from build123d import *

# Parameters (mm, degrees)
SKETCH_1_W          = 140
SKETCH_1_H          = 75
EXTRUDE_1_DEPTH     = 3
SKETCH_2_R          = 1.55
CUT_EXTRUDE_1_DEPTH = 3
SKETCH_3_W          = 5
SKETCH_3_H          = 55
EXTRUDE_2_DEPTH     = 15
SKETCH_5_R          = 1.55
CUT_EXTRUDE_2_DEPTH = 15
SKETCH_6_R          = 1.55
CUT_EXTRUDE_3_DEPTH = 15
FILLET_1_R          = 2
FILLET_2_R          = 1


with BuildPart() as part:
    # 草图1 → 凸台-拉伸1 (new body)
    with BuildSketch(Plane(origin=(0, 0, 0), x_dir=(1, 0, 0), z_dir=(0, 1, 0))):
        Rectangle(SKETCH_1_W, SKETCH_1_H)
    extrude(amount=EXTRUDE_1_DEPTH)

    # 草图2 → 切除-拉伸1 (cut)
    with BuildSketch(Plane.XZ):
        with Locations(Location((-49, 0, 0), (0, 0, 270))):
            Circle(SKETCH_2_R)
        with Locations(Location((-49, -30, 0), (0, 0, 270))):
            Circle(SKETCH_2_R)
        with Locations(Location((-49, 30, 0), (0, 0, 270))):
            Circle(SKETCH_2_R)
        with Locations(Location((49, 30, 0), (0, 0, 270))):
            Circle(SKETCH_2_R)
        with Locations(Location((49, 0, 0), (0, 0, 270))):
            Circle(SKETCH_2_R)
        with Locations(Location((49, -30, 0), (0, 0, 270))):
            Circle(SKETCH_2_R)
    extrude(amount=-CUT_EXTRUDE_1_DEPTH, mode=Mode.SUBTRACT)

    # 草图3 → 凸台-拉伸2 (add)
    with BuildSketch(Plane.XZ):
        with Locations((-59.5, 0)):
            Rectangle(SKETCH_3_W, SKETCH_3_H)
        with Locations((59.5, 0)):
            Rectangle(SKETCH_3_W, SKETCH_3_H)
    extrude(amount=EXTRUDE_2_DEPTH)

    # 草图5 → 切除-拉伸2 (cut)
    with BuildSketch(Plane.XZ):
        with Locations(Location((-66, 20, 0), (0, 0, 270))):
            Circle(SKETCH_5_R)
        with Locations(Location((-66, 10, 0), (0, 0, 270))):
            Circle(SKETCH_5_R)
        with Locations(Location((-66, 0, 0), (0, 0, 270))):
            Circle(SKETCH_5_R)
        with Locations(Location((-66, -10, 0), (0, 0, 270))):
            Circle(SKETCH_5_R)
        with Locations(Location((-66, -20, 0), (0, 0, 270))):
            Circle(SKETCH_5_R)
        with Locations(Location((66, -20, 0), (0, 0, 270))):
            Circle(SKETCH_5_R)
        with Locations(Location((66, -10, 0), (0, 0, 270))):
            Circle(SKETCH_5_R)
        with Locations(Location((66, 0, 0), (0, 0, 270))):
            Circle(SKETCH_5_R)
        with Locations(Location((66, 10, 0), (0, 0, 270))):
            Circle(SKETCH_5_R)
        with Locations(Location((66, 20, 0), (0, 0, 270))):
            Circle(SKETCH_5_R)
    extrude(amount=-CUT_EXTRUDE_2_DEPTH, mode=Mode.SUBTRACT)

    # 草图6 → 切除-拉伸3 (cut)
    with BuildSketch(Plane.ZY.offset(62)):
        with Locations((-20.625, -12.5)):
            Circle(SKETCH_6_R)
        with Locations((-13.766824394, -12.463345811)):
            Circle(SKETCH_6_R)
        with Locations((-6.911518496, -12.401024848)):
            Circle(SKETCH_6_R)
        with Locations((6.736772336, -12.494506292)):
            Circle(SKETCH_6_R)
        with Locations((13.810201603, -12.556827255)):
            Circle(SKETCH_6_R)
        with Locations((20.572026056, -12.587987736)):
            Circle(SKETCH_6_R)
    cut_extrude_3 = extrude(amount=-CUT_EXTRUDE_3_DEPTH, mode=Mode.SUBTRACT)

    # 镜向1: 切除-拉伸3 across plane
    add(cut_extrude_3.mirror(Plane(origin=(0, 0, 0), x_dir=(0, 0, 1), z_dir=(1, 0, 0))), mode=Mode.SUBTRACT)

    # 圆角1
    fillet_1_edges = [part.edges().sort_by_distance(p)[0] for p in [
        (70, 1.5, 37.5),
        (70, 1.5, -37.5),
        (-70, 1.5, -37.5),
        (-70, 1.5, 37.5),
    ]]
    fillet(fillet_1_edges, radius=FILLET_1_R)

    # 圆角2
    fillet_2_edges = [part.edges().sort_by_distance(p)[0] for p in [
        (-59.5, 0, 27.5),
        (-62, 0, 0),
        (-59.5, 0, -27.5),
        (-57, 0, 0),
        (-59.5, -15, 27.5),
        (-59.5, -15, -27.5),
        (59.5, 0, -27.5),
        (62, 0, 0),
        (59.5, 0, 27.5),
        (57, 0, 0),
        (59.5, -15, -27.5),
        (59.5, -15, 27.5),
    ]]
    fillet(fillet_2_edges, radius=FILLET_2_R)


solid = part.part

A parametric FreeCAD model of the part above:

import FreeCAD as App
import Part
import Sketcher
Q = App.Units.Quantity


def edges_at(feature, points):
    """Names of the edges that pass closest to the given points."""
    edges = feature.Shape.Edges
    near = lambda p: min(range(len(edges)), key=lambda i: edges[i].distToShape(Part.Vertex(*p))[0])
    return sorted({f"Edge{near(p) + 1}" for p in points})

doc = App.newDocument("Part")
params = doc.addObject("Spreadsheet::Sheet", "Params")
for row, (alias, value) in enumerate([
    ("sketch1_width", "140 mm"),
    ("sketch1_height", "75 mm"),
    ("pad1_length", "3 mm"),
    ("sketch2_diameter", "3.1 mm"),
    ("pocket1_length", "3 mm"),
    ("sketch3_width", "5 mm"),
    ("sketch3_height", "55 mm"),
    ("pad2_length", "15 mm"),
    ("sketch4_diameter", "3.1 mm"),
    ("pocket2_length", "15 mm"),
    ("sketch5_diameter", "3.1 mm"),
    ("pocket3_length", "15 mm"),
    ("fillet_radius", "2 mm"),
    ("fillet2_radius", "1 mm"),
], start=1):
    params.set(f"A{row}", alias)
    params.set(f"B{row}", "=" + value)
    params.setAlias(f"B{row}", alias)

body = doc.addObject("PartDesign::Body", "Body")

# Sketch on XZ plane
sketch1 = body.newObject("Sketcher::SketchObject", "Sketch")
sketch1.AttachmentSupport = (doc.getObject("XZ_Plane"), [""])
sketch1.MapMode = "FlatFace"
sketch1.addGeometry([
    Part.LineSegment(App.Vector(-70, -38, 0), App.Vector(-70, 38, 0)),
    Part.LineSegment(App.Vector(-70, 38, 0), App.Vector(70, 38, 0)),
    Part.LineSegment(App.Vector(70, 38, 0), App.Vector(70, -38, 0)),
    Part.LineSegment(App.Vector(70, -38, 0), App.Vector(-70, -38, 0)),
], False)
sketch1.addConstraint([
    Sketcher.Constraint("Coincident", 0, 2, 1, 1),
    Sketcher.Constraint("Coincident", 1, 2, 2, 1),
    Sketcher.Constraint("Coincident", 2, 2, 3, 1),
    Sketcher.Constraint("Coincident", 3, 2, 0, 1),
    Sketcher.Constraint("Vertical", 0),
    Sketcher.Constraint("Horizontal", 1),
    Sketcher.Constraint("Vertical", 2),
    Sketcher.Constraint("Horizontal", 3),
    Sketcher.Constraint("Symmetric", 0, 2, 2, 2, -1, 1),
    Sketcher.Constraint("DistanceX", 1, 1, 1, 2, Q("140 mm")),
    Sketcher.Constraint("DistanceY", 0, 1, 0, 2, Q("75 mm")),
])
sketch1.setExpression("Constraints[9]", "Params.sketch1_width")
sketch1.setExpression("Constraints[10]", "Params.sketch1_height")
pad1 = body.newObject("PartDesign::Pad", "Pad")
pad1.Profile = sketch1
pad1.setExpression("Length", "Params.pad1_length")
pad1.Reversed = True

# Sketch on XZ plane
sketch2 = body.newObject("Sketcher::SketchObject", "Sketch001")
sketch2.AttachmentSupport = (doc.getObject("XZ_Plane"), [""])
sketch2.MapMode = "FlatFace"
sketch2.addGeometry([
    Part.Circle(App.Vector(-49, 0, 0), App.Vector(0, 0, 1), 1.6),  # 0
    Part.Circle(App.Vector(-49, -30, 0), App.Vector(0, 0, 1), 1.6),  # 1
    Part.Circle(App.Vector(-49, 30, 0), App.Vector(0, 0, 1), 1.6),  # 2
    Part.Circle(App.Vector(49, 30, 0), App.Vector(0, 0, 1), 1.6),  # 3
    Part.Circle(App.Vector(49, 0, 0), App.Vector(0, 0, 1), 1.6),  # 4
    Part.Circle(App.Vector(49, -30, 0), App.Vector(0, 0, 1), 1.6),  # 5
], False)
sketch2.addConstraint([
    Sketcher.Constraint("Equal", 0, 1),
    Sketcher.Constraint("Equal", 1, 2),
    Sketcher.Constraint("Equal", 2, 3),
    Sketcher.Constraint("Equal", 3, 4),
    Sketcher.Constraint("Equal", 4, 5),
    Sketcher.Constraint("Symmetric", 1, 3, 3, 3, -1, 1),
    Sketcher.Constraint("Symmetric", 0, 3, 4, 3, -1, 1),
    Sketcher.Constraint("Symmetric", 2, 3, 5, 3, -1, 1),
    Sketcher.Constraint("Symmetric", 2, 3, 3, 3, -2),
    Sketcher.Constraint("PointOnObject", 0, 3, -1),
    Sketcher.Constraint("Vertical", 0, 3, 1, 3),
    Sketcher.Constraint("Diameter", 0, Q("3.1 mm")),
    Sketcher.Constraint("DistanceX", 0, 3, -1, 1, Q("49 mm")),
    Sketcher.Constraint("DistanceY", 1, 3, -1, 1, Q("30 mm")),
])
sketch2.setExpression("Constraints[11]", "Params.sketch2_diameter")
pocket1 = body.newObject("PartDesign::Pocket", "Pocket")
pocket1.Profile = sketch2
pocket1.setExpression("Length", "Params.pocket1_length")

# Sketch on XZ plane
sketch3 = body.newObject("Sketcher::SketchObject", "Sketch002")
sketch3.AttachmentSupport = (doc.getObject("XZ_Plane"), [""])
sketch3.MapMode = "FlatFace"
sketch3.addGeometry([
    Part.LineSegment(App.Vector(-62, 28, 0), App.Vector(-62, -28, 0)),  # 0
    Part.LineSegment(App.Vector(-62, -28, 0), App.Vector(-57, -28, 0)),  # 1
    Part.LineSegment(App.Vector(-57, -28, 0), App.Vector(-57, 28, 0)),  # 2
    Part.LineSegment(App.Vector(-57, 28, 0), App.Vector(-62, 28, 0)),  # 3
    Part.LineSegment(App.Vector(57, 28, 0), App.Vector(57, -28, 0)),  # 4
    Part.LineSegment(App.Vector(57, -28, 0), App.Vector(62, -28, 0)),  # 5
    Part.LineSegment(App.Vector(62, -28, 0), App.Vector(62, 28, 0)),  # 6
    Part.LineSegment(App.Vector(62, 28, 0), App.Vector(57, 28, 0)),  # 7
], False)
sketch3.addConstraint([
    Sketcher.Constraint("Coincident", 0, 2, 1, 1),
    Sketcher.Constraint("Coincident", 1, 2, 2, 1),
    Sketcher.Constraint("Coincident", 2, 2, 3, 1),
    Sketcher.Constraint("Coincident", 3, 2, 0, 1),
    Sketcher.Constraint("Coincident", 4, 2, 5, 1),
    Sketcher.Constraint("Coincident", 5, 2, 6, 1),
    Sketcher.Constraint("Coincident", 6, 2, 7, 1),
    Sketcher.Constraint("Coincident", 7, 2, 4, 1),
    Sketcher.Constraint("Vertical", 0),
    Sketcher.Constraint("Horizontal", 1),
    Sketcher.Constraint("Vertical", 2),
    Sketcher.Constraint("Horizontal", 3),
    Sketcher.Constraint("Vertical", 4),
    Sketcher.Constraint("Horizontal", 5),
    Sketcher.Constraint("Vertical", 6),
    Sketcher.Constraint("Horizontal", 7),
    Sketcher.Constraint("Symmetric", 2, 2, 4, 2, -1, 1),
    Sketcher.Constraint("Symmetric", 0, 2, 6, 2, -1, 1),
    Sketcher.Constraint("Horizontal", 1, 2, 4, 2),
    Sketcher.Constraint("DistanceX", 1, 1, 1, 2, Q("5 mm")),
    Sketcher.Constraint("DistanceY", 0, 2, 0, 1, Q("55 mm")),
    Sketcher.Constraint("DistanceX", 0, 2, -1, 1, Q("62 mm")),
])
sketch3.setExpression("Constraints[19]", "Params.sketch3_width")
sketch3.setExpression("Constraints[20]", "Params.sketch3_height")
pad2 = body.newObject("PartDesign::Pad", "Pad001")
pad2.Profile = sketch3
pad2.setExpression("Length", "Params.pad2_length")

# Sketch on XZ plane
sketch4 = body.newObject("Sketcher::SketchObject", "Sketch003")
sketch4.AttachmentSupport = (doc.getObject("XZ_Plane"), [""])
sketch4.MapMode = "FlatFace"
sketch4.addGeometry([
    Part.Circle(App.Vector(-66, 20, 0), App.Vector(0, 0, 1), 1.6),  # 0
    Part.Circle(App.Vector(-66, 10, 0), App.Vector(0, 0, 1), 1.6),  # 1
    Part.Circle(App.Vector(-66, 0, 0), App.Vector(0, 0, 1), 1.6),  # 2
    Part.Circle(App.Vector(-66, -10, 0), App.Vector(0, 0, 1), 1.6),  # 3
    Part.Circle(App.Vector(-66, -20, 0), App.Vector(0, 0, 1), 1.6),  # 4
    Part.Circle(App.Vector(66, -20, 0), App.Vector(0, 0, 1), 1.6),  # 5
    Part.Circle(App.Vector(66, -10, 0), App.Vector(0, 0, 1), 1.6),  # 6
    Part.Circle(App.Vector(66, 0, 0), App.Vector(0, 0, 1), 1.6),  # 7
    Part.Circle(App.Vector(66, 10, 0), App.Vector(0, 0, 1), 1.6),  # 8
    Part.Circle(App.Vector(66, 20, 0), App.Vector(0, 0, 1), 1.6),  # 9
], False)
sketch4.addConstraint([
    Sketcher.Constraint("Equal", 0, 1),
    Sketcher.Constraint("Equal", 1, 2),
    Sketcher.Constraint("Equal", 2, 3),
    Sketcher.Constraint("Equal", 3, 4),
    Sketcher.Constraint("Equal", 4, 5),
    Sketcher.Constraint("Equal", 5, 6),
    Sketcher.Constraint("Equal", 6, 7),
    Sketcher.Constraint("Equal", 7, 8),
    Sketcher.Constraint("Equal", 8, 9),
    Sketcher.Constraint("Symmetric", 0, 3, 5, 3, -1, 1),
    Sketcher.Constraint("Symmetric", 1, 3, 6, 3, -1, 1),
    Sketcher.Constraint("Symmetric", 2, 3, 7, 3, -1, 1),
    Sketcher.Constraint("Symmetric", 3, 3, 8, 3, -1, 1),
    Sketcher.Constraint("Symmetric", 4, 3, 9, 3, -1, 1),
    Sketcher.Constraint("Symmetric", 4, 3, 5, 3, -2),
    Sketcher.Constraint("Symmetric", 3, 3, 6, 3, -2),
    Sketcher.Constraint("PointOnObject", 2, 3, -1),
    Sketcher.Constraint("Vertical", 0, 3, 1, 3),
    Sketcher.Constraint("Vertical", 1, 3, 2, 3),
    Sketcher.Constraint("Diameter", 0, Q("3.1 mm")),
    Sketcher.Constraint("DistanceX", 0, 3, -1, 1, Q("66 mm")),
    Sketcher.Constraint("DistanceY", -1, 1, 0, 3, Q("20 mm")),
    Sketcher.Constraint("DistanceY", -1, 1, 1, 3, Q("10 mm")),
])
sketch4.setExpression("Constraints[19]", "Params.sketch4_diameter")
pocket2 = body.newObject("PartDesign::Pocket", "Pocket001")
pocket2.Profile = sketch4
pocket2.setExpression("Length", "Params.pocket2_length")

# Sketch on YZ plane
sketch5 = body.newObject("Sketcher::SketchObject", "Sketch004")
sketch5.AttachmentSupport = (doc.getObject("YZ_Plane"), [""])
sketch5.MapMode = "FlatFace"
sketch5.AttachmentOffset = App.Placement(App.Vector(0, 0, -62), App.Rotation())
sketch5.addGeometry([
    Part.Circle(App.Vector(-12.5, -20.6, 0), App.Vector(0, 0, 1), 1.6),  # 0
    Part.Circle(App.Vector(-12.5, -13.8, 0), App.Vector(0, 0, 1), 1.6),  # 1
    Part.Circle(App.Vector(-12.4, -6.9, 0), App.Vector(0, 0, 1), 1.6),  # 2
    Part.Circle(App.Vector(-12.5, 6.7, 0), App.Vector(0, 0, 1), 1.6),  # 3
    Part.Circle(App.Vector(-12.6, 13.8, 0), App.Vector(0, 0, 1), 1.6),  # 4
    Part.Circle(App.Vector(-12.6, 20.6, 0), App.Vector(0, 0, 1), 1.6),  # 5
], False)
sketch5.addConstraint([
    Sketcher.Constraint("Equal", 0, 1),
    Sketcher.Constraint("Equal", 1, 2),
    Sketcher.Constraint("Equal", 2, 3),
    Sketcher.Constraint("Equal", 3, 4),
    Sketcher.Constraint("Equal", 4, 5),
    Sketcher.Constraint("Diameter", 0, Q("3.1 mm")),
    Sketcher.Constraint("DistanceX", 0, 3, -1, 1, Q("12.5 mm")),
    Sketcher.Constraint("DistanceY", 0, 3, -1, 1, Q("20.625 mm")),
    Sketcher.Constraint("DistanceY", -1, 1, 4, 3, Q("13.810202 mm")),
    Sketcher.Constraint("DistanceY", 2, 3, -1, 1, Q("6.911518 mm")),
    Sketcher.Constraint("DistanceX", 1, 3, 2, 3, Q("0.062321 mm")),
    Sketcher.Constraint("DistanceX", 3, 3, 2, 3, Q("0.093481 mm")),
    Sketcher.Constraint("DistanceY", 2, 3, 3, 3, Q("13.648291 mm")),
    Sketcher.Constraint("DistanceX", 4, 3, 3, 3, Q("0.062321 mm")),
    Sketcher.Constraint("DistanceX", 5, 3, 4, 3, Q("0.03116 mm")),
    Sketcher.Constraint("DistanceY", 1, 3, 5, 3, Q("34.33885 mm")),
    Sketcher.Constraint("DistanceX", 1, 3, -1, 1, Q("12.463346 mm")),
    Sketcher.Constraint("DistanceY", 1, 3, -1, 1, Q("13.766824 mm")),
])
sketch5.setExpression("Constraints[5]", "Params.sketch5_diameter")
pocket3 = body.newObject("PartDesign::Pocket", "Pocket002")
pocket3.Profile = sketch5
pocket3.setExpression("Length", "Params.pocket3_length")
pocket3.Reversed = True
doc.recompute()

mirrored = body.newObject("PartDesign::Mirrored", "Mirrored")
mirrored.Originals = [pocket3]
mirrored.MirrorPlane = (doc.getObject("YZ_Plane"), [""])
body.Tip = mirrored
doc.recompute()

fillet = body.newObject("PartDesign::Fillet", "Fillet")
fillet.Base = (mirrored, edges_at(mirrored, [
    (70, 1.5, 37.5),
    (70, 1.5, -37.5),
    (-70, 1.5, -37.5),
    (-70, 1.5, 37.5),
]))
fillet.setExpression("Radius", "Params.fillet_radius")
doc.recompute()

fillet2 = body.newObject("PartDesign::Fillet", "Fillet001")
fillet2.Base = (fillet, edges_at(fillet, [
    (-59.5, 0, 27.5),
    (-62, 0, 0),
    (-59.5, 0, -27.5),
    (-57, 0, 0),
    (-59.5, -15, 27.5),
    (-59.5, -15, -27.5),
    (59.5, 0, -27.5),
    (62, 0, 0),
    (59.5, 0, 27.5),
    (57, 0, 0),
    (59.5, -15, -27.5),
    (59.5, -15, 27.5),
]))
fillet2.setExpression("Radius", "Params.fillet2_radius")

doc.recompute()
